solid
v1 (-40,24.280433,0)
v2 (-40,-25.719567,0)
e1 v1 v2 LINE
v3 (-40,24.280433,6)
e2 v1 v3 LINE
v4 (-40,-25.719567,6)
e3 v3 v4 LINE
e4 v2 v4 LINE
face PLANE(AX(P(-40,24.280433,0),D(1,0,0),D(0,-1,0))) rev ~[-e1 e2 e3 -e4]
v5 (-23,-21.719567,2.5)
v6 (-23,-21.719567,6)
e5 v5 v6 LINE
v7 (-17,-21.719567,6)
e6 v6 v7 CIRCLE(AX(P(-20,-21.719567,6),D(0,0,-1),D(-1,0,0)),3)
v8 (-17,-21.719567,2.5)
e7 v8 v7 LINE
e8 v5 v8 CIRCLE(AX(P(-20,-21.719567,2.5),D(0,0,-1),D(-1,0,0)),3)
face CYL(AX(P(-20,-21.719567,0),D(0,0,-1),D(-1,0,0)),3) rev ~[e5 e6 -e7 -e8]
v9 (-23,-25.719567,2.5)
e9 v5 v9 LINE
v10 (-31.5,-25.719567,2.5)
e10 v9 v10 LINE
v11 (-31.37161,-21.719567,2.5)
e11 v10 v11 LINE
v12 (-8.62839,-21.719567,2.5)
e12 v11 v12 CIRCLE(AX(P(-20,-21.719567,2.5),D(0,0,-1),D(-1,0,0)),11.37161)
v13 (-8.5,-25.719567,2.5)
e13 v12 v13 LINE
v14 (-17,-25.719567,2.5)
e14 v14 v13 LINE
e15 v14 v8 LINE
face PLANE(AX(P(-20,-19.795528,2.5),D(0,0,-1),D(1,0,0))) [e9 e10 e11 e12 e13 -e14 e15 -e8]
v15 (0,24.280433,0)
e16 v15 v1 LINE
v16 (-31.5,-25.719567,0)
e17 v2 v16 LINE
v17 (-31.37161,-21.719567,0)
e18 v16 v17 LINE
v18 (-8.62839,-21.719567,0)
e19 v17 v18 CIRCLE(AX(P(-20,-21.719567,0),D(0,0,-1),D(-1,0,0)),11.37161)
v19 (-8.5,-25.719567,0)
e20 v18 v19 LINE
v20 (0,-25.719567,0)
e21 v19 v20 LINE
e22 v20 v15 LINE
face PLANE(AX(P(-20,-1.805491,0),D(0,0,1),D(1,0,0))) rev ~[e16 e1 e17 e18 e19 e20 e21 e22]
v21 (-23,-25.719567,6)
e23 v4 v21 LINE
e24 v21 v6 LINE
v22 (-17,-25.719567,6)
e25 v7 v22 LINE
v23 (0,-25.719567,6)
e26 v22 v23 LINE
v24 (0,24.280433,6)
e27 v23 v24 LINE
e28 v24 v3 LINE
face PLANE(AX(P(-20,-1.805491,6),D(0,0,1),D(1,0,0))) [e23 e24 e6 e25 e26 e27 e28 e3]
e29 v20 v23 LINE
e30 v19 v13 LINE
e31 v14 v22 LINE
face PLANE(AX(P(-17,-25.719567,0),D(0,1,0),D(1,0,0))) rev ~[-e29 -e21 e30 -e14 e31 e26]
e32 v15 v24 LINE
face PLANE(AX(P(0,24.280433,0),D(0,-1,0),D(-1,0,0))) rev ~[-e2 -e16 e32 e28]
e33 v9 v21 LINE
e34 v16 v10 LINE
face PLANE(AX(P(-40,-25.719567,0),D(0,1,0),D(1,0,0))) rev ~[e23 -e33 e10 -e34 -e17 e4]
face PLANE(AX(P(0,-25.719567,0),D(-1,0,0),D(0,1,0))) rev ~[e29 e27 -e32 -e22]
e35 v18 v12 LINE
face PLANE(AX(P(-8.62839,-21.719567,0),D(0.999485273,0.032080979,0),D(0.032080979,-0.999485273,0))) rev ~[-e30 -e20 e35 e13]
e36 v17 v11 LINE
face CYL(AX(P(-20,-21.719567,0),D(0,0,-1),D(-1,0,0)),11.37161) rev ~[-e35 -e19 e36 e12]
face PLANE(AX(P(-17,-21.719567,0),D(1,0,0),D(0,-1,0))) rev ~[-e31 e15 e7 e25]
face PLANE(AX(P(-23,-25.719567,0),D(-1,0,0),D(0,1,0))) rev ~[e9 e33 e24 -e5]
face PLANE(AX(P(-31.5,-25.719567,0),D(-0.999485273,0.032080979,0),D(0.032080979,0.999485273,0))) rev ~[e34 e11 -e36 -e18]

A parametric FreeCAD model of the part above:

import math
import FreeCAD as App
import Part
import Sketcher

V = App.Vector

doc = App.newDocument("Part")
params = doc.addObject("Spreadsheet::Sheet", "Params")
for row, (alias, value) in enumerate([
    ("sketch1_radius", "3 mm"),
    ("sketch1_width", "40 mm"),
    ("sketch1_height", "50 mm"),
    ("sketch1_height2", "4 mm"),
    ("pad1_length", "6 mm"),
    ("pocket1_length", "2.5 mm"),
], start=1):
    params.set(f"A{row}", alias)
    params.set(f"B{row}", "=" + value)
    params.setAlias(f"B{row}", alias)

body = doc.addObject("PartDesign::Body", "Body")

# Sketch on XY plane
sketch1 = doc.addObject("Sketcher::SketchObject", "Sketch")
body.addObject(sketch1)
sketch1.AttachmentSupport = (doc.XY_Plane, [""])
sketch1.MapMode = "FlatFace"
sketch1.addGeometry(Part.LineSegment(V(0, -25.7, 0), V(0, 24.3, 0)), False)
sketch1.addGeometry(Part.LineSegment(V(0, 24.3, 0), V(-40, 24.3, 0)), False)
sketch1.addGeometry(Part.LineSegment(V(-40, 24.3, 0), V(-40, -25.7, 0)), False)
sketch1.addGeometry(Part.LineSegment(V(-40, -25.7, 0), V(-23, -25.7, 0)), False)
sketch1.addGeometry(Part.LineSegment(V(-23, -25.7, 0), V(-23, -21.7, 0)), False)
sketch1.addGeometry(Part.ArcOfCircle(Part.Circle(V(-20, -21.7, 0), V(0, 0, 1), 3), math.radians(0), math.radians(180)), False)
sketch1.addGeometry(Part.LineSegment(V(-17, -21.7, 0), V(-17, -25.7, 0)), False)
sketch1.addGeometry(Part.LineSegment(V(-17, -25.7, 0), V(0, -25.7, 0)), False)
sketch1.addConstraint(Sketcher.Constraint("Coincident", 0, 2, 1, 1))
sketch1.addConstraint(Sketcher.Constraint("Coincident", 1, 2, 2, 1))
sketch1.addConstraint(Sketcher.Constraint("Coincident", 2, 2, 3, 1))
sketch1.addConstraint(Sketcher.Constraint("Coincident", 3, 2, 4, 1))
sketch1.addConstraint(Sketcher.Constraint("Tangent", 4, 2, 5, 2))
sketch1.addConstraint(Sketcher.Constraint("Tangent", 5, 1, 6, 1))
sketch1.addConstraint(Sketcher.Constraint("Coincident", 6, 2, 7, 1))
sketch1.addConstraint(Sketcher.Constraint("Coincident", 7, 2, 0, 1))
sketch1.addConstraint(Sketcher.Constraint("Vertical", 0))
sketch1.addConstraint(Sketcher.Constraint("Horizontal", 1))
sketch1.addConstraint(Sketcher.Constraint("Vertical", 2))
sketch1.addConstraint(Sketcher.Constraint("Horizontal", 3))
sketch1.addConstraint(Sketcher.Constraint("Vertical", 4))
sketch1.addConstraint(Sketcher.Constraint("Vertical", 6))
sketch1.addConstraint(Sketcher.Constraint("Horizontal", 7))
sketch1.addConstraint(Sketcher.Constraint("PointOnObject", 0, 2, -2))
sketch1.addConstraint(Sketcher.Constraint("Horizontal", 3, 2, 6, 2))
sketch1.addConstraint(Sketcher.Constraint("Equal", 3, 7))
sketch1.addConstraint(Sketcher.Constraint("Radius", 5, 3.0))
sketch1.addConstraint(Sketcher.Constraint("DistanceX", 1, 2, 1, 1, 40.0))
sketch1.addConstraint(Sketcher.Constraint("DistanceY", 0, 1, 0, 2, 50.0))
sketch1.addConstraint(Sketcher.Constraint("DistanceY", 4, 1, 4, 2, 4.0))
sketch1.addConstraint(Sketcher.Constraint("DistanceY", 5, 3, -1, 1, 21.719567))
sketch1.setExpression("Constraints[18]", "Params.sketch1_radius")
sketch1.setExpression("Constraints[19]", "Params.sketch1_width")
sketch1.setExpression("Constraints[20]", "Params.sketch1_height")
sketch1.setExpression("Constraints[21]", "Params.sketch1_height2")
pad1 = doc.addObject("PartDesign::Pad", "Pad")
body.addObject(pad1)
pad1.Profile = sketch1
pad1.setExpression("Length", "Params.pad1_length")

# Sketch on XY plane
sketch2 = doc.addObject("Sketcher::SketchObject", "Sketch001")
body.addObject(sketch2)
sketch2.AttachmentSupport = (doc.XY_Plane, [""])
sketch2.MapMode = "FlatFace"
sketch2.addGeometry(Part.ArcOfCircle(Part.Circle(V(-20, -21.7, 0), V(0, 0, 1), 11.4), math.radians(0), math.radians(180)), False)
sketch2.addGeometry(Part.LineSegment(V(-8.6, -21.7, 0), V(-8.5, -25.7, 0)), False)
sketch2.addGeometry(Part.LineSegment(V(-8.5, -25.7, 0), V(-9.4, -25.7, 0)), False)
sketch2.addGeometry(Part.ArcOfCircle(Part.Circle(V(-20, -21.7, 0), V(0, 0, 1), 11.4), math.radians(-159), math.radians(-21)), False)
sketch2.addGeometry(Part.LineSegment(V(-30.6, -25.7, 0), V(-31.5, -25.7, 0)), False)
sketch2.addGeometry(Part.LineSegment(V(-31.5, -25.7, 0), V(-31.4, -21.7, 0)), False)
sketch2.addConstraint(Sketcher.Constraint("Coincident", 0, 1, 1, 1))
sketch2.addConstraint(Sketcher.Constraint("Coincident", 1, 2, 2, 1))
sketch2.addConstraint(Sketcher.Constraint("Coincident", 2, 2, 3, 2))
sketch2.addConstraint(Sketcher.Constraint("Coincident", 3, 1, 4, 1))
sketch2.addConstraint(Sketcher.Constraint("Coincident", 4, 2, 5, 1))
sketch2.addConstraint(Sketcher.Constraint("Coincident", 5, 2, 0, 2))
sketch2.addConstraint(Sketcher.Constraint("Horizontal", 2))
sketch2.addConstraint(Sketcher.Constraint("Horizontal", 4))
sketch2.addConstraint(Sketcher.Constraint("Coincident", 3, 3, 0, 3))
sketch2.addConstraint(Sketcher.Constraint("Equal", 0, 3))
sketch2.addConstraint(Sketcher.Constraint("Horizontal", 3, 3, 0, 1))
sketch2.addConstraint(Sketcher.Constraint("Horizontal", 2, 2, 3, 1))
sketch2.addConstraint(Sketcher.Constraint("Horizontal", 0, 1, 5, 2))
sketch2.addConstraint(Sketcher.Constraint("Equal", 2, 4))
sketch2.addConstraint(Sketcher.Constraint("DistanceX", 0, 3, -1, 1, 20.0))
sketch2.addConstraint(Sketcher.Constraint("DistanceY", 1, 2, 0, 1, 4.0))
sketch2.addConstraint(Sketcher.Constraint("DistanceX", 4, 2, 1, 2, 23.0))
sketch2.addConstraint(Sketcher.Constraint("Radius", 0, 11.37161))
sketch2.addConstraint(Sketcher.Constraint("DistanceY", 0, 3, -1, 1, 21.719567))
pocket1 = doc.addObject("PartDesign::Pocket", "Pocket")
body.addObject(pocket1)
pocket1.Profile = sketch2
pocket1.setExpression("Length", "Params.pocket1_length")
pocket1.Reversed = True

doc.recompute()
